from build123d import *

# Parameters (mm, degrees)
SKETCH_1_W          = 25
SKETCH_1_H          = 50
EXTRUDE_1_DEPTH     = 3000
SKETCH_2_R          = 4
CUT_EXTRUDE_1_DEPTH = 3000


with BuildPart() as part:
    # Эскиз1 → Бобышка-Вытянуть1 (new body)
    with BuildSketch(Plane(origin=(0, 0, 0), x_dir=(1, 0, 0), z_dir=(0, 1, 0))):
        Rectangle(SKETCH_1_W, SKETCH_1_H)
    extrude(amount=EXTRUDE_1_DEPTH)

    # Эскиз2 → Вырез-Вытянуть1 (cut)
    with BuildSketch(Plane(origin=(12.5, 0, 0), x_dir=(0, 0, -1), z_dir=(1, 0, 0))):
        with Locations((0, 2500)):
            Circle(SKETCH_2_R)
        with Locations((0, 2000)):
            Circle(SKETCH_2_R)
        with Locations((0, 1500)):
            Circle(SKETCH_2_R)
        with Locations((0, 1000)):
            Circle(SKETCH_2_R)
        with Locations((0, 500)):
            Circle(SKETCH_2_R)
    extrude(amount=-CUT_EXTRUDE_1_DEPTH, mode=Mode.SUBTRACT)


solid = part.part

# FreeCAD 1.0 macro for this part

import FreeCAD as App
import Part
import Sketcher
from FreeCAD import Vector
Q = App.Units.Quantity


def add_polygon(sketch, points):
    """Adds a closed chain of lines whose ends are joined by coincident constraints."""
    first, n = sketch.GeometryCount, len(points)
    for a, b in zip(points, points[1:] + points[:1]):
        sketch.addGeometry(Part.LineSegment(App.Vector(*a, 0), App.Vector(*b, 0)), False)
    for i in range(n):
        sketch.addConstraint(Sketcher.Constraint("Coincident", first + i, 2, first + (i + 1) % n, 1))

doc = App.newDocument("Part")
params = doc.addObject("Spreadsheet::Sheet", "Params")
for row, (alias, value) in enumerate([
    ("sketch1_width", "25 mm"),
    ("sketch1_height", "50 mm"),
    ("pad1_length", "3000 mm"),
    ("sketch2_diameter", "8 mm"),
    ("pocket1_length", "3000 mm"),
], start=1):
    params.set(f"A{row}", alias)
    params.set(f"B{row}", "=" + value)
    params.setAlias(f"B{row}", alias)

body = doc.addObject("PartDesign::Body", "Body")

sketch1 = body.newObject("Sketcher::SketchObject", "Sketch")
sketch1.AttachmentSupport = (doc.getObject("XZ_Plane"), [""])
sketch1.MapMode = "FlatFace"
add_polygon(sketch1, [(-12, -25), (-12, 25), (12, 25), (12, -25)])
sketch1.addConstraint([
    Sketcher.Constraint("Vertical", 0),
    Sketcher.Constraint("Horizontal", 1),
    Sketcher.Constraint("Vertical", 2),
    Sketcher.Constraint("Horizontal", 3),
    Sketcher.Constraint("Symmetric", 0, 2, 2, 2, -1, 1),
    Sketcher.Constraint("DistanceX", 1, 1, 1, 2, Q("25 mm")),
    Sketcher.Constraint("DistanceY", 0, 1, 0, 2, Q("50 mm")),
])
sketch1.setExpression("Constraints[9]", "Params.sketch1_width")
sketch1.setExpression("Constraints[10]", "Params.sketch1_height")
pad1 = body.newObject("PartDesign::Pad", "Pad")
pad1.Profile = sketch1
pad1.setExpression("Length", "Params.pad1_length")
pad1.Reversed = True

sketch2 = body.newObject("Sketcher::SketchObject", "Sketch001")
sketch2.AttachmentSupport = (doc.getObject("YZ_Plane"), [""])
sketch2.MapMode = "FlatFace"
sketch2.AttachmentOffset = App.Placement(Vector(0, 0, 12.5), App.Rotation())
sketch2.addGeometry([
    Part.Circle(Vector(2500, 0, 0), Vector(0, 0, 1), 4),
    Part.Circle(Vector(2000, 0, 0), Vector(0, 0, 1), 4),
    Part.Circle(Vector(1500, 0, 0), Vector(0, 0, 1), 4),
    Part.Circle(Vector(1000, 0, 0), Vector(0, 0, 1), 4),
    Part.Circle(Vector(500, 0, 0), Vector(0, 0, 1), 4),
], False)
sketch2.addConstraint([
    Sketcher.Constraint("Equal", 0, 1),
    Sketcher.Constraint("Equal", 1, 2),
    Sketcher.Constraint("Equal", 2, 3),
    Sketcher.Constraint("Equal", 3, 4),
    Sketcher.Constraint("PointOnObject", 0, 3, -1),
    Sketcher.Constraint("PointOnObject", 1, 3, -1),
    Sketcher.Constraint("PointOnObject", 2, 3, -1),
    Sketcher.Constraint("PointOnObject", 3, 3, -1),
    Sketcher.Constraint("PointOnObject", 4, 3, -1),
    Sketcher.Constraint("Diameter", 0, Q("8 mm")),
    Sketcher.Constraint("DistanceX", -1, 1, 0, 3, Q("2500 mm")),
    Sketcher.Constraint("DistanceX", -1, 1, 1, 3, Q("2000 mm")),
    Sketcher.Constraint("DistanceX", -1, 1, 2, 3, Q("1500 mm")),
    Sketcher.Constraint("DistanceX", -1, 1, 3, 3, Q("1000 mm")),
    Sketcher.Constraint("DistanceX", -1, 1, 4, 3, Q("500 mm")),
])
sketch2.setExpression("Constraints[9]", "Params.sketch2_diameter")
pocket1 = body.newObject("PartDesign::Pocket", "Pocket")
pocket1.Profile = sketch2
pocket1.setExpression("Length", "Params.pocket1_length")

doc.recompute()
